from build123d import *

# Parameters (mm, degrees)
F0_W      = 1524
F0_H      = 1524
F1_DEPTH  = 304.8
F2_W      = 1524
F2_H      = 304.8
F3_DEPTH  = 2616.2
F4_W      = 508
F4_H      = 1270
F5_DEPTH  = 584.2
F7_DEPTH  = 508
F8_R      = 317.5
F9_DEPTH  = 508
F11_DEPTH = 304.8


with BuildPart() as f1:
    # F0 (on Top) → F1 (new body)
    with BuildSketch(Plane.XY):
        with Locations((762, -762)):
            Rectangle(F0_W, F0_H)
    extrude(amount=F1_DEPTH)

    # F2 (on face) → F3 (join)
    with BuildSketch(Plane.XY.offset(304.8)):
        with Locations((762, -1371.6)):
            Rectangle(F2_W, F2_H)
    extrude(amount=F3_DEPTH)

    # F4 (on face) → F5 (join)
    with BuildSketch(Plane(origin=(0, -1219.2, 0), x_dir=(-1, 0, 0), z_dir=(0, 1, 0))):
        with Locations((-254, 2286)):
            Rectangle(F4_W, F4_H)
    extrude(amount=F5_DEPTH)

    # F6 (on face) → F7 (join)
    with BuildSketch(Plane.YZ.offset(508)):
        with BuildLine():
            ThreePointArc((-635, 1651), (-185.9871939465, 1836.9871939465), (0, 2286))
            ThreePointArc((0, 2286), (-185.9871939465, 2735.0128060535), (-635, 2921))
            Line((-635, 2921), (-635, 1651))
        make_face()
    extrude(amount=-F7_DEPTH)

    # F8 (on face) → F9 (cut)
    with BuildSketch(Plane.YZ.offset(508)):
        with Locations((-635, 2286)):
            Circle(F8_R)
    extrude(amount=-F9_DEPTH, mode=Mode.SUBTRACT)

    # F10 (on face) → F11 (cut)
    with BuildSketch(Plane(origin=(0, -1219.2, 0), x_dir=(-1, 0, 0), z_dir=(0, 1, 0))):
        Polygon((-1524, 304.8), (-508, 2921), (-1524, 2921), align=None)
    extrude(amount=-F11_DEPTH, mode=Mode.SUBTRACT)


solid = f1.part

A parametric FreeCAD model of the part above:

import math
import FreeCAD as App
import Part
import Sketcher
from FreeCAD import Vector
Q = App.Units.Quantity


def add_polygon(sketch, points):
    """Adds a closed chain of lines whose ends are joined by coincident constraints."""
    first, n = sketch.GeometryCount, len(points)
    for a, b in zip(points, points[1:] + points[:1]):
        sketch.addGeometry(Part.LineSegment(App.Vector(*a, 0), App.Vector(*b, 0)), False)
    for i in range(n):
        sketch.addConstraint(Sketcher.Constraint("Coincident", first + i, 2, first + (i + 1) % n, 1))

doc = App.newDocument("Part")
body = doc.addObject("PartDesign::Body", "Body")

# Sketch on XY plane
sketch1 = doc.addObject("Sketcher::SketchObject", "Sketch")
body.addObject(sketch1)
sketch1.AttachmentSupport = (doc.XY_Plane, [""])
sketch1.MapMode = "FlatFace"
add_polygon(sketch1, [(0, 0), (0, -1524), (1524, -1524), (1524, 0)])  # lines 0-3
sketch1.addConstraint([
    Sketcher.Constraint("Vertical", 0),
    Sketcher.Constraint("Horizontal", 1),
    Sketcher.Constraint("Vertical", 2),
    Sketcher.Constraint("Horizontal", 3),
    Sketcher.Constraint("Coincident", 3, 2, -1, 1),
    Sketcher.Constraint("Equal", 3, 0),
    Sketcher.Constraint("DistanceX", 1, 1, 1, 2, Q("60 in")),
])
pad1 = doc.addObject("PartDesign::Pad", "Pad")
body.addObject(pad1)
pad1.Profile = sketch1
pad1.Length = Q("12 in")

# Sketch on XY plane
sketch2 = doc.addObject("Sketcher::SketchObject", "Sketch001")
body.addObject(sketch2)
sketch2.AttachmentSupport = (doc.XY_Plane, [""])
sketch2.MapMode = "FlatFace"
sketch2.AttachmentOffset = App.Placement(Vector(0, 0, 12 * 25.4), App.Rotation())
add_polygon(sketch2, [(0, -1219), (0, -1524), (1524, -1524), (1524, -1219)])  # lines 0-3
sketch2.addConstraint([
    Sketcher.Constraint("Vertical", 0),
    Sketcher.Constraint("Horizontal", 1),
    Sketcher.Constraint("Vertical", 2),
    Sketcher.Constraint("Horizontal", 3),
    Sketcher.Constraint("PointOnObject", 0, 2, -2),
    Sketcher.Constraint("DistanceX", 1, 1, 1, 2, Q("60 in")),
    Sketcher.Constraint("DistanceY", 0, 2, 0, 1, Q("12 in")),
    Sketcher.Constraint("DistanceY", 0, 2, -1, 1, Q("60 in")),
])
pad2 = doc.addObject("PartDesign::Pad", "Pad001")
body.addObject(pad2)
pad2.Profile = sketch2
pad2.Length = Q("103 in")

# Sketch on XZ plane
sketch3 = doc.addObject("Sketcher::SketchObject", "Sketch002")
body.addObject(sketch3)
sketch3.AttachmentSupport = (doc.XZ_Plane, [""])
sketch3.MapMode = "FlatFace"
sketch3.AttachmentOffset = App.Placement(Vector(0, 0, 48 * 25.4), App.Rotation())
add_polygon(sketch3, [(508, 2921), (508, 1651), (0, 1651), (0, 2921)])  # lines 0-3
sketch3.addConstraint([
    Sketcher.Constraint("Vertical", 0),
    Sketcher.Constraint("Horizontal", 1),
    Sketcher.Constraint("Vertical", 2),
    Sketcher.Constraint("Horizontal", 3),
    Sketcher.Constraint("PointOnObject", 1, 2, -2),
    Sketcher.Constraint("DistanceX", 1, 2, 1, 1, Q("20 in")),
    Sketcher.Constraint("DistanceY", 0, 2, 0, 1, Q("50 in")),
    Sketcher.Constraint("DistanceY", -1, 1, 0, 2, Q("65 in")),
])
pad3 = doc.addObject("PartDesign::Pad", "Pad002")
body.addObject(pad3)
pad3.Profile = sketch3
pad3.Length = Q("23 in")
pad3.Reversed = True

# Sketch on YZ plane
sketch4 = doc.addObject("Sketcher::SketchObject", "Sketch003")
body.addObject(sketch4)
sketch4.AttachmentSupport = (doc.YZ_Plane, [""])
sketch4.MapMode = "FlatFace"
sketch4.AttachmentOffset = App.Placement(Vector(0, 0, 20 * 25.4), App.Rotation())
sketch4.addGeometry([
    Part.ArcOfCircle(Part.Circle(Vector(-635, 2286, 0), Vector(0, 0, 1), 635), math.radians(-90), math.radians(90)),
    Part.LineSegment(Vector(-635, 2921, 0), Vector(-635, 1651, 0)),
], False)
sketch4.addConstraint([
    Sketcher.Constraint("Coincident", 0, 1, 1, 2),
    Sketcher.Constraint("Coincident", 1, 1, 0, 2),
    Sketcher.Constraint("Vertical", 1),
    Sketcher.Constraint("Radius", 0, Q("25 in")),
    Sketcher.Constraint("DistanceX", 0, 3, -1, 1, Q("25 in")),
    Sketcher.Constraint("DistanceY", -1, 1, 0, 3, Q("90 in")),
    Sketcher.Constraint("DistanceX", 1, 1, -1, 1, Q("25 in")),
])
pad4 = doc.addObject("PartDesign::Pad", "Pad003")
body.addObject(pad4)
pad4.Profile = sketch4
pad4.Length = Q("20 in")
pad4.Reversed = True

# Sketch on YZ plane
sketch5 = doc.addObject("Sketcher::SketchObject", "Sketch004")
body.addObject(sketch5)
sketch5.AttachmentSupport = (doc.YZ_Plane, [""])
sketch5.MapMode = "FlatFace"
sketch5.AttachmentOffset = App.Placement(Vector(0, 0, 20 * 25.4), App.Rotation())
sketch5.addGeometry(Part.Circle(Vector(-635, 2286, 0), Vector(0, 0, 1), 318), False)
sketch5.addConstraint([
    Sketcher.Constraint("Diameter", 0, Q("25 in")),
    Sketcher.Constraint("DistanceX", 0, 3, -1, 1, Q("25 in")),
    Sketcher.Constraint("DistanceY", -1, 1, 0, 3, Q("90 in")),
])
pocket1 = doc.addObject("PartDesign::Pocket", "Pocket")
body.addObject(pocket1)
pocket1.Profile = sketch5
pocket1.Length = Q("20 in")

# Sketch on XZ plane
sketch6 = doc.addObject("Sketcher::SketchObject", "Sketch005")
body.addObject(sketch6)
sketch6.AttachmentSupport = (doc.XZ_Plane, [""])
sketch6.MapMode = "FlatFace"
sketch6.AttachmentOffset = App.Placement(Vector(0, 0, 48 * 25.4), App.Rotation())
add_polygon(sketch6, [(1524, 305), (508, 2921), (1524, 2921)])  # lines 0-2
sketch6.addConstraint([
    Sketcher.Constraint("Horizontal", 1),
    Sketcher.Constraint("Vertical", 2),
    Sketcher.Constraint("DistanceX", 1, 1, 1, 2, Q("40 in")),
    Sketcher.Constraint("DistanceY", 2, 2, 2, 1, Q("103 in")),
    Sketcher.Constraint("DistanceX", -1, 1, 0, 2, Q("20 in")),
    Sketcher.Constraint("DistanceY", -1, 1, 0, 2, Q("115 in")),
])
pocket2 = doc.addObject("PartDesign::Pocket", "Pocket001")
body.addObject(pocket2)
pocket2.Profile = sketch6
pocket2.Length = Q("12 in")
pocket2.Reversed = True

doc.recompute()
